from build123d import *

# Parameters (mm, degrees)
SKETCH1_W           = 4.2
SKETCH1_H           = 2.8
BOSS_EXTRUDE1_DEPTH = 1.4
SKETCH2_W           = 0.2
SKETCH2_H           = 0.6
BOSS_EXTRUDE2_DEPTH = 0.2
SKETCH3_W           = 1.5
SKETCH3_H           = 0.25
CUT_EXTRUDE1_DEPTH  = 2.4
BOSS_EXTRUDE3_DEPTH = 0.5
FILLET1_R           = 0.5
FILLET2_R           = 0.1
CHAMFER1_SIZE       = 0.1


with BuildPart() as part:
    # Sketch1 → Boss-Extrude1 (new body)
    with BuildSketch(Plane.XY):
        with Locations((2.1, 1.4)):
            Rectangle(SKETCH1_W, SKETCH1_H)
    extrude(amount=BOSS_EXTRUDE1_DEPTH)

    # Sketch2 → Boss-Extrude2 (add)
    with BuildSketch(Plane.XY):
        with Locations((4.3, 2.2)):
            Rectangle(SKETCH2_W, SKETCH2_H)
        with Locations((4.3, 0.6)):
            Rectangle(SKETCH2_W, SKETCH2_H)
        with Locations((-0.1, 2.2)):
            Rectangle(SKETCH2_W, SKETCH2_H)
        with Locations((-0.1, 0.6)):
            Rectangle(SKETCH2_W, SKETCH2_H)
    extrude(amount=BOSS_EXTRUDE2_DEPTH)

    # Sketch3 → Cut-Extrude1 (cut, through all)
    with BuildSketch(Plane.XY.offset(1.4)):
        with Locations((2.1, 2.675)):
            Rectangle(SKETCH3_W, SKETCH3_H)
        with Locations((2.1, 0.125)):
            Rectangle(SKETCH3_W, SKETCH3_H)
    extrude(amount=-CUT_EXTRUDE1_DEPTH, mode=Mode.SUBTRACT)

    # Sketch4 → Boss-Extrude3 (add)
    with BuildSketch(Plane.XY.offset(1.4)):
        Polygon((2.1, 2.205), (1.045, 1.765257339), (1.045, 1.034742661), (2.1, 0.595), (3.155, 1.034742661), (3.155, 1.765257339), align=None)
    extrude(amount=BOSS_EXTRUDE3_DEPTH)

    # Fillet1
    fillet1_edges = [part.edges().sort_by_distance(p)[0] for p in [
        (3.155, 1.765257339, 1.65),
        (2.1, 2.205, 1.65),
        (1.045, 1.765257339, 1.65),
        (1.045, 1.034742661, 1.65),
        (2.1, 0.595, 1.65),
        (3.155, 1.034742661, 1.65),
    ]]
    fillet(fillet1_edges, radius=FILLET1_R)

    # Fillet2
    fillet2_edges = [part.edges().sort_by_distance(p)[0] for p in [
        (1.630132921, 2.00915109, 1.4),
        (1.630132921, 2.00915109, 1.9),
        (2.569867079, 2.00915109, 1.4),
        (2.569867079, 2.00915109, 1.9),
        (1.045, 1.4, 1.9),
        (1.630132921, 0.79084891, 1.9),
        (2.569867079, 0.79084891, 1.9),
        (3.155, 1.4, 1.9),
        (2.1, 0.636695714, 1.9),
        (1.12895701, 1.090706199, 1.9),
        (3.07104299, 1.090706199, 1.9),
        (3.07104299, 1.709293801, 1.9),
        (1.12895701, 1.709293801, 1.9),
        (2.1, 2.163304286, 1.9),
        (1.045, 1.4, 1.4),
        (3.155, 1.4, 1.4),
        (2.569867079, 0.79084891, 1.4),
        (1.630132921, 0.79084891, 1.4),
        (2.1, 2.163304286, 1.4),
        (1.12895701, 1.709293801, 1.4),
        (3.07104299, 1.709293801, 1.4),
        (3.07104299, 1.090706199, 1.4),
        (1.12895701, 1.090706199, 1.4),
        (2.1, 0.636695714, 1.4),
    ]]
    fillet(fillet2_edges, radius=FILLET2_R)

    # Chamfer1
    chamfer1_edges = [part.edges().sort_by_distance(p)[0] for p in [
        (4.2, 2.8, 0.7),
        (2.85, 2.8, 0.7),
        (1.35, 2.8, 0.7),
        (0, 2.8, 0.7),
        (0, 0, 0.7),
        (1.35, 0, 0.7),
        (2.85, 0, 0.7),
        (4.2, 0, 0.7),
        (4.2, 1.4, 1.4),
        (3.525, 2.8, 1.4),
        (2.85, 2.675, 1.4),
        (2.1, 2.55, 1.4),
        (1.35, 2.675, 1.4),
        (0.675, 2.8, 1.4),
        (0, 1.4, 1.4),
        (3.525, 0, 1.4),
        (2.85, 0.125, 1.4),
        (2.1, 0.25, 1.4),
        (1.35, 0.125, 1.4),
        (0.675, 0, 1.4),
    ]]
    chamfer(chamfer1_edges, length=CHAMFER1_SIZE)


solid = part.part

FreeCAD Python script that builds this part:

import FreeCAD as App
import Part
import Sketcher


def edges_at(feature, points):
    """Names of the edges that pass closest to the given points."""
    edges = feature.Shape.Edges
    near = lambda p: min(range(len(edges)), key=lambda i: edges[i].distToShape(Part.Vertex(*p))[0])
    return sorted({f"Edge{near(p) + 1}" for p in points})

doc = App.newDocument("Part")
body = doc.addObject("PartDesign::Body", "Body")

# Sketch on XY plane
sketch1 = body.newObject("Sketcher::SketchObject", "Sketch")
sketch1.AttachmentSupport = (doc.getObject("XY_Plane"), [""])
sketch1.MapMode = "FlatFace"
sketch1.addGeometry(Part.LineSegment(App.Vector(0, 2.8, 0), App.Vector(0, 0, 0)), False)
sketch1.addGeometry(Part.LineSegment(App.Vector(0, 0, 0), App.Vector(4.2, 0, 0)), False)
sketch1.addGeometry(Part.LineSegment(App.Vector(4.2, 0, 0), App.Vector(4.2, 2.8, 0)), False)
sketch1.addGeometry(Part.LineSegment(App.Vector(4.2, 2.8, 0), App.Vector(0, 2.8, 0)), False)
sketch1.addConstraint(Sketcher.Constraint("Coincident", 0, 2, 1, 1))
sketch1.addConstraint(Sketcher.Constraint("Coincident", 1, 2, 2, 1))
sketch1.addConstraint(Sketcher.Constraint("Coincident", 2, 2, 3, 1))
sketch1.addConstraint(Sketcher.Constraint("Coincident", 3, 2, 0, 1))
sketch1.addConstraint(Sketcher.Constraint("Vertical", 0))
sketch1.addConstraint(Sketcher.Constraint("Horizontal", 1))
sketch1.addConstraint(Sketcher.Constraint("Vertical", 2))
sketch1.addConstraint(Sketcher.Constraint("Horizontal", 3))
sketch1.addConstraint(Sketcher.Constraint("Coincident", 0, 2, -1, 1))
sketch1.addConstraint(Sketcher.Constraint("DistanceX", 1, 1, 1, 2, 4.2))
sketch1.addConstraint(Sketcher.Constraint("DistanceY", 0, 2, 0, 1, 2.8))
pad1 = body.newObject("PartDesign::Pad", "Pad")
pad1.Profile = sketch1
pad1.Length = 1.4

# Sketch on XY plane
sketch2 = body.newObject("Sketcher::SketchObject", "Sketch001")
sketch2.AttachmentSupport = (doc.getObject("XY_Plane"), [""])
sketch2.MapMode = "FlatFace"
sketch2.addGeometry(Part.LineSegment(App.Vector(4.2, 2.5, 0), App.Vector(4.2, 1.9, 0)), False)
sketch2.addGeometry(Part.LineSegment(App.Vector(4.2, 1.9, 0), App.Vector(4.4, 1.9, 0)), False)
sketch2.addGeometry(Part.LineSegment(App.Vector(4.4, 1.9, 0), App.Vector(4.4, 2.5, 0)), False)
sketch2.addGeometry(Part.LineSegment(App.Vector(4.4, 2.5, 0), App.Vector(4.2, 2.5, 0)), False)
sketch2.addGeometry(Part.LineSegment(App.Vector(4.2, 0.9, 0), App.Vector(4.2, 0.3, 0)), False)
sketch2.addGeometry(Part.LineSegment(App.Vector(4.2, 0.3, 0), App.Vector(4.4, 0.3, 0)), False)
sketch2.addGeometry(Part.LineSegment(App.Vector(4.4, 0.3, 0), App.Vector(4.4, 0.9, 0)), False)
sketch2.addGeometry(Part.LineSegment(App.Vector(4.4, 0.9, 0), App.Vector(4.2, 0.9, 0)), False)
sketch2.addGeometry(Part.LineSegment(App.Vector(-0.2, 2.5, 0), App.Vector(-0.2, 1.9, 0)), False)
sketch2.addGeometry(Part.LineSegment(App.Vector(-0.2, 1.9, 0), App.Vector(0, 1.9, 0)), False)
sketch2.addGeometry(Part.LineSegment(App.Vector(0, 1.9, 0), App.Vector(0, 2.5, 0)), False)
sketch2.addGeometry(Part.LineSegment(App.Vector(0, 2.5, 0), App.Vector(-0.2, 2.5, 0)), False)
sketch2.addGeometry(Part.LineSegment(App.Vector(-0.2, 0.9, 0), App.Vector(-0.2, 0.3, 0)), False)
sketch2.addGeometry(Part.LineSegment(App.Vector(-0.2, 0.3, 0), App.Vector(0, 0.3, 0)), False)
sketch2.addGeometry(Part.LineSegment(App.Vector(0, 0.3, 0), App.Vector(0, 0.9, 0)), False)
sketch2.addGeometry(Part.LineSegment(App.Vector(0, 0.9, 0), App.Vector(-0.2, 0.9, 0)), False)
sketch2.addConstraint(Sketcher.Constraint("Coincident", 0, 2, 1, 1))
sketch2.addConstraint(Sketcher.Constraint("Coincident", 1, 2, 2, 1))
sketch2.addConstraint(Sketcher.Constraint("Coincident", 2, 2, 3, 1))
sketch2.addConstraint(Sketcher.Constraint("Coincident", 3, 2, 0, 1))
sketch2.addConstraint(Sketcher.Constraint("Coincident", 4, 2, 5, 1))
sketch2.addConstraint(Sketcher.Constraint("Coincident", 5, 2, 6, 1))
sketch2.addConstraint(Sketcher.Constraint("Coincident", 6, 2, 7, 1))
sketch2.addConstraint(Sketcher.Constraint("Coincident", 7, 2, 4, 1))
sketch2.addConstraint(Sketcher.Constraint("Coincident", 8, 2, 9, 1))
sketch2.addConstraint(Sketcher.Constraint("Coincident", 9, 2, 10, 1))
sketch2.addConstraint(Sketcher.Constraint("Coincident", 10, 2, 11, 1))
sketch2.addConstraint(Sketcher.Constraint("Coincident", 11, 2, 8, 1))
sketch2.addConstraint(Sketcher.Constraint("Coincident", 12, 2, 13, 1))
sketch2.addConstraint(Sketcher.Constraint("Coincident", 13, 2, 14, 1))
sketch2.addConstraint(Sketcher.Constraint("Coincident", 14, 2, 15, 1))
sketch2.addConstraint(Sketcher.Constraint("Coincident", 15, 2, 12, 1))
sketch2.addConstraint(Sketcher.Constraint("Vertical", 0))
sketch2.addConstraint(Sketcher.Constraint("Horizontal", 1))
sketch2.addConstraint(Sketcher.Constraint("Vertical", 2))
sketch2.addConstraint(Sketcher.Constraint("Horizontal", 3))
sketch2.addConstraint(Sketcher.Constraint("Vertical", 4))
sketch2.addConstraint(Sketcher.Constraint("Horizontal", 5))
sketch2.addConstraint(Sketcher.Constraint("Vertical", 6))
sketch2.addConstraint(Sketcher.Constraint("Horizontal", 7))
sketch2.addConstraint(Sketcher.Constraint("Vertical", 8))
sketch2.addConstraint(Sketcher.Constraint("Horizontal", 9))
sketch2.addConstraint(Sketcher.Constraint("Vertical", 10))
sketch2.addConstraint(Sketcher.Constraint("Horizontal", 11))
sketch2.addConstraint(Sketcher.Constraint("Vertical", 12))
sketch2.addConstraint(Sketcher.Constraint("Horizontal", 13))
sketch2.addConstraint(Sketcher.Constraint("Vertical", 14))
sketch2.addConstraint(Sketcher.Constraint("Horizontal", 15))
sketch2.addConstraint(Sketcher.Constraint("PointOnObject", 9, 2, -2))
sketch2.addConstraint(Sketcher.Constraint("PointOnObject", 13, 2, -2))
sketch2.addConstraint(Sketcher.Constraint("Horizontal", 1, 2, 8, 2))
sketch2.addConstraint(Sketcher.Constraint("Horizontal", 3, 2, 10, 2))
sketch2.addConstraint(Sketcher.Constraint("Horizontal", 5, 2, 12, 2))
sketch2.addConstraint(Sketcher.Constraint("Horizontal", 7, 2, 14, 2))
sketch2.addConstraint(Sketcher.Constraint("Vertical", 3, 2, 4, 2))
sketch2.addConstraint(Sketcher.Constraint("Vertical", 2, 2, 5, 2))
sketch2.addConstraint(Sketcher.Constraint("Vertical", 11, 2, 12, 2))
sketch2.addConstraint(Sketcher.Constraint("Equal", 7, 9))
sketch2.addConstraint(Sketcher.Constraint("Equal", 2, 4))
sketch2.addConstraint(Sketcher.Constraint("DistanceX", 1, 1, 1, 2, 0.2))
sketch2.addConstraint(Sketcher.Constraint("DistanceY", 0, 2, 0, 1, 0.6))
sketch2.addConstraint(Sketcher.Constraint("DistanceY", 6, 2, 1, 2, 1.0))
sketch2.addConstraint(Sketcher.Constraint("DistanceX", -1, 1, 0, 2, 4.2))
sketch2.addConstraint(Sketcher.Constraint("DistanceY", -1, 1, 0, 2, 1.9))
pad2 = body.newObject("PartDesign::Pad", "Pad001")
pad2.Profile = sketch2
pad2.Length = 0.2

# Sketch on XY plane
sketch3 = body.newObject("Sketcher::SketchObject", "Sketch002")
sketch3.AttachmentSupport = (doc.getObject("XY_Plane"), [""])
sketch3.MapMode = "FlatFace"
sketch3.AttachmentOffset = App.Placement(App.Vector(0, 0, 1.4), App.Rotation())
sketch3.addGeometry(Part.LineSegment(App.Vector(1.35, 2.8, 0), App.Vector(1.35, 2.55, 0)), False)
sketch3.addGeometry(Part.LineSegment(App.Vector(1.35, 2.55, 0), App.Vector(2.85, 2.55, 0)), False)
sketch3.addGeometry(Part.LineSegment(App.Vector(2.85, 2.55, 0), App.Vector(2.85, 2.8, 0)), False)
sketch3.addGeometry(Part.LineSegment(App.Vector(2.85, 2.8, 0), App.Vector(1.35, 2.8, 0)), False)
sketch3.addGeometry(Part.LineSegment(App.Vector(1.35, 0.25, 0), App.Vector(1.35, 0, 0)), False)
sketch3.addGeometry(Part.LineSegment(App.Vector(1.35, 0, 0), App.Vector(2.85, 0, 0)), False)
sketch3.addGeometry(Part.LineSegment(App.Vector(2.85, 0, 0), App.Vector(2.85, 0.25, 0)), False)
sketch3.addGeometry(Part.LineSegment(App.Vector(2.85, 0.25, 0), App.Vector(1.35, 0.25, 0)), False)
sketch3.addConstraint(Sketcher.Constraint("Coincident", 0, 2, 1, 1))
sketch3.addConstraint(Sketcher.Constraint("Coincident", 1, 2, 2, 1))
sketch3.addConstraint(Sketcher.Constraint("Coincident", 2, 2, 3, 1))
sketch3.addConstraint(Sketcher.Constraint("Coincident", 3, 2, 0, 1))
sketch3.addConstraint(Sketcher.Constraint("Coincident", 4, 2, 5, 1))
sketch3.addConstraint(Sketcher.Constraint("Coincident", 5, 2, 6, 1))
sketch3.addConstraint(Sketcher.Constraint("Coincident", 6, 2, 7, 1))
sketch3.addConstraint(Sketcher.Constraint("Coincident", 7, 2, 4, 1))
sketch3.addConstraint(Sketcher.Constraint("Vertical", 0))
sketch3.addConstraint(Sketcher.Constraint("Horizontal", 1))
sketch3.addConstraint(Sketcher.Constraint("Vertical", 2))
sketch3.addConstraint(Sketcher.Constraint("Horizontal", 3))
sketch3.addConstraint(Sketcher.Constraint("Vertical", 4))
sketch3.addConstraint(Sketcher.Constraint("Horizontal", 5))
sketch3.addConstraint(Sketcher.Constraint("Vertical", 6))
sketch3.addConstraint(Sketcher.Constraint("Horizontal", 7))
sketch3.addConstraint(Sketcher.Constraint("PointOnObject", 4, 2, -1))
sketch3.addConstraint(Sketcher.Constraint("Vertical", 3, 2, 4, 2))
sketch3.addConstraint(Sketcher.Constraint("Vertical", 2, 2, 5, 2))
sketch3.addConstraint(Sketcher.Constraint("Equal", 2, 4))
sketch3.addConstraint(Sketcher.Constraint("DistanceX", 1, 1, 1, 2, 1.5))
sketch3.addConstraint(Sketcher.Constraint("DistanceY", 0, 2, 0, 1, 0.25))
sketch3.addConstraint(Sketcher.Constraint("DistanceY", -1, 1, 2, 2, 2.8))
sketch3.addConstraint(Sketcher.Constraint("DistanceX", -1, 1, 0, 2, 1.35))
pocket1 = body.newObject("PartDesign::Pocket", "Pocket")
pocket1.Profile = sketch3
pocket1.Type = "ThroughAll"

# Sketch on XY plane
sketch4 = body.newObject("Sketcher::SketchObject", "Sketch003")
sketch4.AttachmentSupport = (doc.getObject("XY_Plane"), [""])
sketch4.MapMode = "FlatFace"
sketch4.AttachmentOffset = App.Placement(App.Vector(0, 0, 1.4), App.Rotation())
sketch4.addGeometry(Part.LineSegment(App.Vector(2.1, 2.2, 0), App.Vector(1, 1.8, 0)), False)
sketch4.addGeometry(Part.LineSegment(App.Vector(1, 1.8, 0), App.Vector(1, 1, 0)), False)
sketch4.addGeometry(Part.LineSegment(App.Vector(1, 1, 0), App.Vector(2.1, 0.6, 0)), False)
sketch4.addGeometry(Part.LineSegment(App.Vector(2.1, 0.6, 0), App.Vector(3.2, 1, 0)), False)
sketch4.addGeometry(Part.LineSegment(App.Vector(3.2, 1, 0), App.Vector(3.2, 1.8, 0)), False)
sketch4.addGeometry(Part.LineSegment(App.Vector(3.2, 1.8, 0), App.Vector(2.1, 2.2, 0)), False)
sketch4.addConstraint(Sketcher.Constraint("Coincident", 0, 2, 1, 1))
sketch4.addConstraint(Sketcher.Constraint("Coincident", 1, 2, 2, 1))
sketch4.addConstraint(Sketcher.Constraint("Coincident", 2, 2, 3, 1))
sketch4.addConstraint(Sketcher.Constraint("Coincident", 3, 2, 4, 1))
sketch4.addConstraint(Sketcher.Constraint("Coincident", 4, 2, 5, 1))
sketch4.addConstraint(Sketcher.Constraint("Coincident", 5, 2, 0, 1))
sketch4.addConstraint(Sketcher.Constraint("Vertical", 1))
sketch4.addConstraint(Sketcher.Constraint("Vertical", 4))
sketch4.addConstraint(Sketcher.Constraint("Parallel", 0, 3))
sketch4.addConstraint(Sketcher.Constraint("Parallel", 2, 5))
sketch4.addConstraint(Sketcher.Constraint("Horizontal", 1, 2, 3, 2))
sketch4.addConstraint(Sketcher.Constraint("Horizontal", 0, 2, 4, 2))
sketch4.addConstraint(Sketcher.Constraint("Vertical", 2, 2, 5, 2))
sketch4.addConstraint(Sketcher.Constraint("DistanceX", -1, 1, 2, 2, 2.1))
sketch4.addConstraint(Sketcher.Constraint("DistanceX", 1, 2, 3, 2, 2.11))
sketch4.addConstraint(Sketcher.Constraint("DistanceY", 2, 2, 5, 2, 1.61))
sketch4.addConstraint(Sketcher.Constraint("DistanceY", -1, 1, 2, 2, 0.595))
sketch4.addConstraint(Sketcher.Constraint("DistanceY", 1, 2, 1, 1, 0.730515))
pad3 = body.newObject("PartDesign::Pad", "Pad002")
pad3.Profile = sketch4
pad3.Length = 0.5
doc.recompute()

fillet = body.newObject("PartDesign::Fillet", "Fillet")
fillet.Base = (pad3, edges_at(pad3, [
    (3.155, 1.765, 1.65),
    (2.1, 2.205, 1.65),
    (1.045, 1.765, 1.65),
    (1.045, 1.035, 1.65),
    (2.1, 0.595, 1.65),
    (3.155, 1.035, 1.65),
]))
fillet.Radius = 0.5
doc.recompute()

fillet2 = body.newObject("PartDesign::Fillet", "Fillet001")
fillet2.Base = (fillet, edges_at(fillet, [
    (1.63, 2.009, 1.4),
    (1.63, 2.009, 1.9),
    (2.57, 2.009, 1.4),
    (2.57, 2.009, 1.9),
    (1.045, 1.4, 1.9),
    (1.63, 0.791, 1.9),
    (2.57, 0.791, 1.9),
    (3.155, 1.4, 1.9),
    (2.1, 0.637, 1.9),
    (1.129, 1.091, 1.9),
    (3.071, 1.091, 1.9),
    (3.071, 1.709, 1.9),
    (1.129, 1.709, 1.9),
    (2.1, 2.163, 1.9),
    (1.045, 1.4, 1.4),
    (3.155, 1.4, 1.4),
    (2.57, 0.791, 1.4),
    (1.63, 0.791, 1.4),
    (2.1, 2.163, 1.4),
    (1.129, 1.709, 1.4),
    (3.071, 1.709, 1.4),
    (3.071, 1.091, 1.4),
    (1.129, 1.091, 1.4),
    (2.1, 0.637, 1.4),
]))
fillet2.Radius = 0.1
doc.recompute()

chamfer = body.newObject("PartDesign::Chamfer", "Chamfer")
chamfer.Base = (fillet2, edges_at(fillet2, [
    (4.2, 2.8, 0.7),
    (2.85, 2.8, 0.7),
    (1.35, 2.8, 0.7),
    (0, 2.8, 0.7),
    (0, 0, 0.7),
    (1.35, 0, 0.7),
    (2.85, 0, 0.7),
    (4.2, 0, 0.7),
    (4.2, 1.4, 1.4),
    (3.525, 2.8, 1.4),
    (2.85, 2.675, 1.4),
    (2.1, 2.55, 1.4),
    (1.35, 2.675, 1.4),
    (0.675, 2.8, 1.4),
    (0, 1.4, 1.4),
    (3.525, 0, 1.4),
    (2.85, 0.125, 1.4),
    (2.1, 0.25, 1.4),
    (1.35, 0.125, 1.4),
    (0.675, 0, 1.4),
]))
chamfer.Size = 0.1

doc.recompute()
